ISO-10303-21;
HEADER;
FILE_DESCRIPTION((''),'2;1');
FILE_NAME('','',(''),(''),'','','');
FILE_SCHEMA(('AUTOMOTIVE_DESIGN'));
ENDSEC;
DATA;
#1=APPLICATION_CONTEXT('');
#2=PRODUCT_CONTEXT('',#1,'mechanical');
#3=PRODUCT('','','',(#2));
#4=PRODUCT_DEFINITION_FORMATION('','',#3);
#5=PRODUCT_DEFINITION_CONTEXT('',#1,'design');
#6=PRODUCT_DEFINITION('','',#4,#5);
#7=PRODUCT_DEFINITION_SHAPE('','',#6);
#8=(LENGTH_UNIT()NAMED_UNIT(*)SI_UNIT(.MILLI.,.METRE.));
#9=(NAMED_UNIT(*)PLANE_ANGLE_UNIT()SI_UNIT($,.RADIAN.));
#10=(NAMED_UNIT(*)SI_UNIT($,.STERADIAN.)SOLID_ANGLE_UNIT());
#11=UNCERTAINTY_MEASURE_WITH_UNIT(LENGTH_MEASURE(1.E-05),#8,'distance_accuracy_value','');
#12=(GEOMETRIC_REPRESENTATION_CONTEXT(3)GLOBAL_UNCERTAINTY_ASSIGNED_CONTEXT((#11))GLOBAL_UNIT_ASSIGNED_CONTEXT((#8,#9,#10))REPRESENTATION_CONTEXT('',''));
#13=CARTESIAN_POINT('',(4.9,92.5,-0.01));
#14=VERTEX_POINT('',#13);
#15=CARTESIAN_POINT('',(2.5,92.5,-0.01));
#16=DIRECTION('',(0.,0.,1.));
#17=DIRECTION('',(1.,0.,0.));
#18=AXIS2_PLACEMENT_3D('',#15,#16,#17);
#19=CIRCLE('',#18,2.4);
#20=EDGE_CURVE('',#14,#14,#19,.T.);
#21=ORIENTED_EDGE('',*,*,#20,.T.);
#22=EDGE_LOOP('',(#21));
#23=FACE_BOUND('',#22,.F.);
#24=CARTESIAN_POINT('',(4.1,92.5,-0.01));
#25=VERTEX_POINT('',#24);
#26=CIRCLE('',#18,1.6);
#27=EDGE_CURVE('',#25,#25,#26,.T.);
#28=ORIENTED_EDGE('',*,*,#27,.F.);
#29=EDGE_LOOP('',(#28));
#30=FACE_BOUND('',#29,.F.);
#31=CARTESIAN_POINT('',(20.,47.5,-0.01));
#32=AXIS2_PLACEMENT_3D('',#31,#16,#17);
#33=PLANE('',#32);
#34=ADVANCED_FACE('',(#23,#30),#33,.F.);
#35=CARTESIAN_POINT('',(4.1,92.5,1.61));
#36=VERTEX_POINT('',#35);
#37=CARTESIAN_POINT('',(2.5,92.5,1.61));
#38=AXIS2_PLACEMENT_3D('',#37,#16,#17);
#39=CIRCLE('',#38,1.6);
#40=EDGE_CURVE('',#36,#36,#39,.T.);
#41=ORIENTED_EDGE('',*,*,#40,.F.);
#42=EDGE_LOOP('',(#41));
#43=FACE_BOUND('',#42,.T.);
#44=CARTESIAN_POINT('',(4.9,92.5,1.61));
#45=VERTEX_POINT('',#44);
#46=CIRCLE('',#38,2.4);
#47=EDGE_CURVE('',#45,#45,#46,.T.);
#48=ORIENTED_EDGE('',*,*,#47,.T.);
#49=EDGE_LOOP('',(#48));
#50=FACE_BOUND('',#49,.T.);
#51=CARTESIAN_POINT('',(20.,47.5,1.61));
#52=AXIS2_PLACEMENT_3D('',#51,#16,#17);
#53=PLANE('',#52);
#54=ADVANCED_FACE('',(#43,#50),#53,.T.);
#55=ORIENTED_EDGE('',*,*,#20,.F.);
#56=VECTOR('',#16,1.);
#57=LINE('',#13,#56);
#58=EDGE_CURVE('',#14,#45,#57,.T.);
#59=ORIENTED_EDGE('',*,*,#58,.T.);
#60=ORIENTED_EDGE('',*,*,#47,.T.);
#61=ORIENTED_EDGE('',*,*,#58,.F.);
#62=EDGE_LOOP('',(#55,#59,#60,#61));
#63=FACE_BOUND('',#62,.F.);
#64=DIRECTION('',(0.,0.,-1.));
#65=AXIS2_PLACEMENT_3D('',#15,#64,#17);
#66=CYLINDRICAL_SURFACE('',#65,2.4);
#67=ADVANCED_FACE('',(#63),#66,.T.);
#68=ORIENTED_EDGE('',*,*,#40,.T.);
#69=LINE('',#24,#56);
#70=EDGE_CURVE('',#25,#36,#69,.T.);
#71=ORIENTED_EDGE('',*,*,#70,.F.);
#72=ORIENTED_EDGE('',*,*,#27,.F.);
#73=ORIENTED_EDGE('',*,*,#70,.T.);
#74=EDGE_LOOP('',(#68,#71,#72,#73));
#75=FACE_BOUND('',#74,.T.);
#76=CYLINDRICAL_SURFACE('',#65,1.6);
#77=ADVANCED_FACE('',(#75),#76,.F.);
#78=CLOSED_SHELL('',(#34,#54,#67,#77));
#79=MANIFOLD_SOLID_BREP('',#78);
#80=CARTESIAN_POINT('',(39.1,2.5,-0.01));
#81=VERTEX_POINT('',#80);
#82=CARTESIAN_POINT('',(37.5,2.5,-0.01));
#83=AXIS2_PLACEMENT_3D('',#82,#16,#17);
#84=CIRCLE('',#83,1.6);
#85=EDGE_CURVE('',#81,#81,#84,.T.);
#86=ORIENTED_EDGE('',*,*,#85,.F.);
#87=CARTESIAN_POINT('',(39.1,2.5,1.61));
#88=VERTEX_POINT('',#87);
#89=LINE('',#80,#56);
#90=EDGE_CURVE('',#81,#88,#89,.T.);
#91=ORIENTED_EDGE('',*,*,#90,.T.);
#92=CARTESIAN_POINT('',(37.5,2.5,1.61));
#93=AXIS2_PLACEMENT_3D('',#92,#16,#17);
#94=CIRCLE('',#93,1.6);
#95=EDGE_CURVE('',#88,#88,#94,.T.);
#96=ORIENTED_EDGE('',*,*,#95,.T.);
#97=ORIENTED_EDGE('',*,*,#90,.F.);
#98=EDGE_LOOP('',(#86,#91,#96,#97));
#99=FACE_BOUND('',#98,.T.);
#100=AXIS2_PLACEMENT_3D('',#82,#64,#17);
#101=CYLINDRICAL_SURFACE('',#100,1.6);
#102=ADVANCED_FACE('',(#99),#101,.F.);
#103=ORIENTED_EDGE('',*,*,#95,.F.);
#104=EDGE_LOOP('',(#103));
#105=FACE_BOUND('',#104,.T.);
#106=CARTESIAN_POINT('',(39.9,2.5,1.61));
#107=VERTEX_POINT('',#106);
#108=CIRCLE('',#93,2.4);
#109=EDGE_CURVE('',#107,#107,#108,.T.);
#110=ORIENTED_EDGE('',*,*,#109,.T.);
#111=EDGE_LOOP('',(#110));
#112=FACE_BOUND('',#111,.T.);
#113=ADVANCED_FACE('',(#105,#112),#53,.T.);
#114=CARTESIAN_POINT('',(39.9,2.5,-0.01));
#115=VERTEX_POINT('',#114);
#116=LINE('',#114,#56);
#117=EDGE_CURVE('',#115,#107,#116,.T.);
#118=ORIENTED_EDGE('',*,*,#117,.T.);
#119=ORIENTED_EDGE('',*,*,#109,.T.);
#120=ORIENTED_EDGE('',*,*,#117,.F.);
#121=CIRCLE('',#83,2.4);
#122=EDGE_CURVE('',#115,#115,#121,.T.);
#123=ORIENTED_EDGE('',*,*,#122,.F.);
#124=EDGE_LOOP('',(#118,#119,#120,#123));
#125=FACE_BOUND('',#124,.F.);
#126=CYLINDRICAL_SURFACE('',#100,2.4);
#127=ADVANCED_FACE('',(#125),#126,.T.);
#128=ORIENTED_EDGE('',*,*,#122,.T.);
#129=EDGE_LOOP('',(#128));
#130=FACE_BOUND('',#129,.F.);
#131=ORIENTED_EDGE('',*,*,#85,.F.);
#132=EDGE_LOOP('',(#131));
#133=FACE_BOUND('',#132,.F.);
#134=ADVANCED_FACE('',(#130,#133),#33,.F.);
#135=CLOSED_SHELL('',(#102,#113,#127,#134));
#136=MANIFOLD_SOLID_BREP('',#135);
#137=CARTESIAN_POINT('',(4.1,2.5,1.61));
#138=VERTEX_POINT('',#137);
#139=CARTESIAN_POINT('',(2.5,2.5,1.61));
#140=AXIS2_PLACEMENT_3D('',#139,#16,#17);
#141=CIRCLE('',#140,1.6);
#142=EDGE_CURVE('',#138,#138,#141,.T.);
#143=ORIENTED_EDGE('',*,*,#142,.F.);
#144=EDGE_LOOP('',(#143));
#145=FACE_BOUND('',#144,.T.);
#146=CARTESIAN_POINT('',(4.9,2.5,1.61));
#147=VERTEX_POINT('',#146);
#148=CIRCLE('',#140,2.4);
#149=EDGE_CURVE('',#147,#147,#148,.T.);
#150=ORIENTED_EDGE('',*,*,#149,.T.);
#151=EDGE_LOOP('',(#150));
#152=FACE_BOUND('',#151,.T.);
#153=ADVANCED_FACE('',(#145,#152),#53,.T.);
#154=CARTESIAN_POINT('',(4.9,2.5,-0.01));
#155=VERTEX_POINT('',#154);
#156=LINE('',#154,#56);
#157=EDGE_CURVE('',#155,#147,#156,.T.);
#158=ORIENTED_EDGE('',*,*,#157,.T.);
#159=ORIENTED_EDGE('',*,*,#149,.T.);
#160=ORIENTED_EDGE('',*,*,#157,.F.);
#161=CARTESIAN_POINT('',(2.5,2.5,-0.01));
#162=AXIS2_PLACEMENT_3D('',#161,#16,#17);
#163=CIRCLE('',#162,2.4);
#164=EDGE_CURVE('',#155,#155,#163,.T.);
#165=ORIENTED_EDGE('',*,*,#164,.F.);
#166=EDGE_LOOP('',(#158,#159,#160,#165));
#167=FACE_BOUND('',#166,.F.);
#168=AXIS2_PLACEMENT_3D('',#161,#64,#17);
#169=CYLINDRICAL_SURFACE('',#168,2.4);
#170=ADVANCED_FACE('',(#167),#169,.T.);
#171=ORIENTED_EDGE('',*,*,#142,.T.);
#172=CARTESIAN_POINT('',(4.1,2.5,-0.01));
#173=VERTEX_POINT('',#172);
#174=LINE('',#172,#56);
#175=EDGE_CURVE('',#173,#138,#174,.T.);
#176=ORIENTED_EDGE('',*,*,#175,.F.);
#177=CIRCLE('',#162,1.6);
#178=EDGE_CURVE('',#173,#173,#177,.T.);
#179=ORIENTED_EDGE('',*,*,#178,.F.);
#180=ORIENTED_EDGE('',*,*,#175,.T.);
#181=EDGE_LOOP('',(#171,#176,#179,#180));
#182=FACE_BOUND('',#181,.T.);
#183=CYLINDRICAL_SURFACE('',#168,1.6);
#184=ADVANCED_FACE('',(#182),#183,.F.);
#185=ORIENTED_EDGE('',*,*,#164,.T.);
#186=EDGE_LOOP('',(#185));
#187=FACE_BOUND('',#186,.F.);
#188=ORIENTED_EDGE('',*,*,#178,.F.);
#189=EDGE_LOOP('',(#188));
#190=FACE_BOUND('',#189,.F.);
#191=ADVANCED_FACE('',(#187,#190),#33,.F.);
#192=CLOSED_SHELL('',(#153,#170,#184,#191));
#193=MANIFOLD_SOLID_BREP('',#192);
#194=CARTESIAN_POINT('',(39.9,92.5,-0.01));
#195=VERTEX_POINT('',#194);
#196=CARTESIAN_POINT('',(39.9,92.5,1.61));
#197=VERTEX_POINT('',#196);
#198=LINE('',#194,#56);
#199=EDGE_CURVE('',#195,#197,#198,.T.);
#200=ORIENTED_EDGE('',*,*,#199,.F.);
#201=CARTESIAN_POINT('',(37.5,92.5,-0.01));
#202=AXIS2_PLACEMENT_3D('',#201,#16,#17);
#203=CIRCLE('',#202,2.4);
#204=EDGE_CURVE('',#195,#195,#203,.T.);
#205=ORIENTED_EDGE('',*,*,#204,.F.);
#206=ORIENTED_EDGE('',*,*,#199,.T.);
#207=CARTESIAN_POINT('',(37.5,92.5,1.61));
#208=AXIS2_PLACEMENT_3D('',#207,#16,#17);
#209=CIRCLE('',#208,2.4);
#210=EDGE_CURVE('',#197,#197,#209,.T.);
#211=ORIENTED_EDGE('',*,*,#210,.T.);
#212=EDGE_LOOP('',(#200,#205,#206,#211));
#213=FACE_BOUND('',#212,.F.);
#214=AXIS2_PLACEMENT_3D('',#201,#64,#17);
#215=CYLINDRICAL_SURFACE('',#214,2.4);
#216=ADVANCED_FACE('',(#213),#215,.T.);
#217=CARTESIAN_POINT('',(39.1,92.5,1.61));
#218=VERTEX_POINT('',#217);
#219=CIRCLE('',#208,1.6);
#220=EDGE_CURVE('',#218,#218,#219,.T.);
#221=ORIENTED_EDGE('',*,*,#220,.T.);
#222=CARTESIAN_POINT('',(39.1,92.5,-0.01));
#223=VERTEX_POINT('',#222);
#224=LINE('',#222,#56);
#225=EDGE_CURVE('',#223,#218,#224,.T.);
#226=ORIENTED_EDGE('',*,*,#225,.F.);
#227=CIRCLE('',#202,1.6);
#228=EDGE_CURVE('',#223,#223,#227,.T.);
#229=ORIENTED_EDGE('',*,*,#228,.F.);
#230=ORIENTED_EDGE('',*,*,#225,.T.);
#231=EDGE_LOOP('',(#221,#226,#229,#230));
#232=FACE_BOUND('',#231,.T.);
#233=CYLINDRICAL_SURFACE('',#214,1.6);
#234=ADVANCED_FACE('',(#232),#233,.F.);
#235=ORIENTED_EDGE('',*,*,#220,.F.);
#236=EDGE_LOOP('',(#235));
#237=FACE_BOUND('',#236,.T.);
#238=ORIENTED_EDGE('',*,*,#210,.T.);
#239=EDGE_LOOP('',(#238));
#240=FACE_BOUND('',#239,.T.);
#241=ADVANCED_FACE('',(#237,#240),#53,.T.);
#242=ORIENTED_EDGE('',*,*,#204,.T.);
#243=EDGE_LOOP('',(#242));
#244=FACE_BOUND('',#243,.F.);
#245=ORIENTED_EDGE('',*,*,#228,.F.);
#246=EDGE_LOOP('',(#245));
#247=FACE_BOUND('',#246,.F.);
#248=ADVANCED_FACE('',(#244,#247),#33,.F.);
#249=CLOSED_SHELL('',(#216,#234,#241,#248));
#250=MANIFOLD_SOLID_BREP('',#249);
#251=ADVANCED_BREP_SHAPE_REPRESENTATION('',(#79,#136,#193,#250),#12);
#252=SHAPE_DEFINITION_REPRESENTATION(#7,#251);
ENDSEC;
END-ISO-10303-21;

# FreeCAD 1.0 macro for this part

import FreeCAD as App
import Part
import Sketcher
from FreeCAD import Vector


def add_polygon(sketch, points):
    """Adds a closed chain of lines whose ends are joined by coincident constraints."""
    first, n = sketch.GeometryCount, len(points)
    for a, b in zip(points, points[1:] + points[:1]):
        sketch.addGeometry(Part.LineSegment(App.Vector(*a, 0), App.Vector(*b, 0)), False)
    for i in range(n):
        sketch.addConstraint(Sketcher.Constraint("Coincident", first + i, 2, first + (i + 1) % n, 1))

doc = App.newDocument("Part")
body = doc.addObject("PartDesign::Body", "Body")

# Sketch on XY plane
sketch1 = body.newObject("Sketcher::SketchObject", "Sketch")
sketch1.AttachmentSupport = (doc.getObject("XY_Plane"), [""])
sketch1.MapMode = "FlatFace"
sketch1.AttachmentOffset = App.Placement(Vector(0, 0, -0.01), App.Rotation())
add_polygon(sketch1, [(-0.5, 95.5), (-0.5, -0.5), (40.5, -0.5), (40.5, 95.5)])  # lines 0-3
sketch1.addGeometry(Part.Circle(Vector(2.5, 2.5, 0), Vector(0, 0, 1), 2.4), False)  # 4
sketch1.addGeometry(Part.Circle(Vector(37.5, 2.5, 0), Vector(0, 0, 1), 2.4), False)  # 5
sketch1.addGeometry(Part.Circle(Vector(2.5, 92.5, 0), Vector(0, 0, 1), 2.4), False)  # 6
sketch1.addGeometry(Part.Circle(Vector(37.5, 92.5, 0), Vector(0, 0, 1), 2.4), False)  # 7
sketch1.addConstraint([
    Sketcher.Constraint("Vertical", 0),
    Sketcher.Constraint("Horizontal", 1),
    Sketcher.Constraint("Vertical", 2),
    Sketcher.Constraint("Horizontal", 3),
    Sketcher.Constraint("Equal", 4, 5),
    Sketcher.Constraint("Equal", 5, 6),
    Sketcher.Constraint("Equal", 6, 7),
    Sketcher.Constraint("Horizontal", 4, 3, 5, 3),
    Sketcher.Constraint("Horizontal", 6, 3, 7, 3),
    Sketcher.Constraint("Vertical", 4, 3, 6, 3),
    Sketcher.Constraint("Vertical", 5, 3, 7, 3),
    Sketcher.Constraint("Diameter", 4, 4.8),
    Sketcher.Constraint("DistanceX", 1, 1, 1, 2, 41.0),
    Sketcher.Constraint("DistanceY", 0, 2, 0, 1, 96.0),
    Sketcher.Constraint("DistanceX", 4, 3, 5, 3, 35.0),
    Sketcher.Constraint("DistanceY", 4, 3, 6, 3, 90.0),
    Sketcher.Constraint("DistanceX", 0, 2, 4, 3, 3.0),
    Sketcher.Constraint("DistanceY", 0, 2, 4, 3, 3.0),
    Sketcher.Constraint("DistanceX", -1, 1, 4, 3, 2.5),
    Sketcher.Constraint("DistanceY", -1, 1, 4, 3, 2.5),
])
pad1 = body.newObject("PartDesign::Pad", "Pad")
pad1.Profile = sketch1
pad1.Length = 1.62
body2 = doc.addObject("PartDesign::Body", "Body001")
body2.AllowCompound = True

# Sketch on XY plane
sketch2 = body2.newObject("Sketcher::SketchObject", "Sketch001")
sketch2.AttachmentSupport = (doc.getObject("XY_Plane001"), [""])
sketch2.MapMode = "FlatFace"
sketch2.AttachmentOffset = App.Placement(Vector(0, 0, -0.01), App.Rotation())
add_polygon(sketch2, [(-0.5, 95.5), (-0.5, -0.5), (40.5, -0.5), (40.5, 95.5)])  # lines 0-3
sketch2.addGeometry(Part.Circle(Vector(2.5, 2.5, 0), Vector(0, 0, 1), 1.6), False)  # 4
sketch2.addGeometry(Part.Circle(Vector(37.5, 2.5, 0), Vector(0, 0, 1), 1.6), False)  # 5
sketch2.addGeometry(Part.Circle(Vector(2.5, 92.5, 0), Vector(0, 0, 1), 1.6), False)  # 6
sketch2.addGeometry(Part.Circle(Vector(37.5, 92.5, 0), Vector(0, 0, 1), 1.6), False)  # 7
sketch2.addConstraint([
    Sketcher.Constraint("Vertical", 0),
    Sketcher.Constraint("Horizontal", 1),
    Sketcher.Constraint("Vertical", 2),
    Sketcher.Constraint("Horizontal", 3),
    Sketcher.Constraint("Equal", 4, 5),
    Sketcher.Constraint("Equal", 5, 6),
    Sketcher.Constraint("Equal", 6, 7),
    Sketcher.Constraint("Horizontal", 4, 3, 5, 3),
    Sketcher.Constraint("Horizontal", 6, 3, 7, 3),
    Sketcher.Constraint("Vertical", 4, 3, 6, 3),
    Sketcher.Constraint("Vertical", 5, 3, 7, 3),
    Sketcher.Constraint("Diameter", 4, 3.2),
    Sketcher.Constraint("DistanceX", 1, 1, 1, 2, 41.0),
    Sketcher.Constraint("DistanceY", 0, 2, 0, 1, 96.0),
    Sketcher.Constraint("DistanceX", 4, 3, 5, 3, 35.0),
    Sketcher.Constraint("DistanceY", 4, 3, 6, 3, 90.0),
    Sketcher.Constraint("DistanceX", 0, 2, 4, 3, 3.0),
    Sketcher.Constraint("DistanceY", 0, 2, 4, 3, 3.0),
    Sketcher.Constraint("DistanceX", -1, 1, 4, 3, 2.5),
    Sketcher.Constraint("DistanceY", -1, 1, 4, 3, 2.5),
])
pad2 = body2.newObject("PartDesign::Pad", "Pad001")
pad2.Profile = sketch2
pad2.Length = 1.62
doc.recompute()

boolean = body2.newObject("PartDesign::Boolean", "Boolean")
boolean.Type = "Cut"
boolean.addObjects([body])

doc.recompute()
